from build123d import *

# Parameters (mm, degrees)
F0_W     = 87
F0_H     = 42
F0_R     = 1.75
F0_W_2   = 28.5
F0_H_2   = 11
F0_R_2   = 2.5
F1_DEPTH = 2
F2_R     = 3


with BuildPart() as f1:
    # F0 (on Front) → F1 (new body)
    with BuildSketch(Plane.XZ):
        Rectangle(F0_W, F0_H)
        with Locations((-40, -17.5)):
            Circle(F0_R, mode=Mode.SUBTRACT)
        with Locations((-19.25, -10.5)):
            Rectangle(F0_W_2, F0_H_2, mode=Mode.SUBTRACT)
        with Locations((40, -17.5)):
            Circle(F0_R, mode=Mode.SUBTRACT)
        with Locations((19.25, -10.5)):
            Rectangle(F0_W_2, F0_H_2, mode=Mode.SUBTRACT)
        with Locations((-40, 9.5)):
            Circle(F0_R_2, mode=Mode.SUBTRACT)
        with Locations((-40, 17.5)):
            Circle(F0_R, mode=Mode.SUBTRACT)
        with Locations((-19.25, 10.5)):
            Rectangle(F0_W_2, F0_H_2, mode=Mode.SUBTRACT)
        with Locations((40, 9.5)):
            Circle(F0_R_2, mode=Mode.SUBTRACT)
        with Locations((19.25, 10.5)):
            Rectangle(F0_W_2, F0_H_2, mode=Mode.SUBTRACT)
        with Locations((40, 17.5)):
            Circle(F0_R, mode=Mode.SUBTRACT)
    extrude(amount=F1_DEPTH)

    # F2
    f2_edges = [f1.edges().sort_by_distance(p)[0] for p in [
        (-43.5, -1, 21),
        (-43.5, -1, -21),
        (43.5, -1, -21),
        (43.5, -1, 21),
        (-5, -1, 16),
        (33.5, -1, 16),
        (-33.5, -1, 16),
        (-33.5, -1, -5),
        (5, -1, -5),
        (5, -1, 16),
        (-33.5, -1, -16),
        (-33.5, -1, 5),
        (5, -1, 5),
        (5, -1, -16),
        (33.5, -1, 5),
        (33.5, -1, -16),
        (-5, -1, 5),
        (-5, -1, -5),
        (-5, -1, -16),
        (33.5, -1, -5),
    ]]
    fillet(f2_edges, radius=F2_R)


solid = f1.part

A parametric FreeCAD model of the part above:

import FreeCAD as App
import Part
import Sketcher

V = App.Vector


def edges_at(feature, points):
    """Names of the edges that pass closest to the given points."""
    edges = feature.Shape.Edges
    near = lambda p: min(range(len(edges)), key=lambda i: edges[i].distToShape(Part.Vertex(*p))[0])
    return sorted({f"Edge{near(p) + 1}" for p in points})


def add_polygon(sketch, points):
    """Adds a closed chain of lines whose ends are joined by coincident constraints."""
    first, n = sketch.GeometryCount, len(points)
    for a, b in zip(points, points[1:] + points[:1]):
        sketch.addGeometry(Part.LineSegment(App.Vector(*a, 0), App.Vector(*b, 0)), False)
    for i in range(n):
        sketch.addConstraint(Sketcher.Constraint("Coincident", first + i, 2, first + (i + 1) % n, 1))

doc = App.newDocument("Part")
body = doc.addObject("PartDesign::Body", "Body")

sketch1 = body.newObject("Sketcher::SketchObject", "Sketch")
sketch1.AttachmentSupport = (doc.getObject("XZ_Plane"), [""])
sketch1.MapMode = "FlatFace"
add_polygon(sketch1, [(-43.5, 21), (-43.5, -21), (43.5, -21), (43.5, 21)])
sketch1.addGeometry(Part.Circle(V(-40, -17.5, 0), V(0, 0, 1), 1.75), False)
add_polygon(sketch1, [(-5, -16), (-33.5, -16), (-33.5, -5), (-5, -5)])
add_polygon(sketch1, [(33.5, -16), (5, -16), (5, -5), (33.5, -5)])
sketch1.addGeometry(Part.Circle(V(40, -17.5, 0), V(0, 0, 1), 1.75), False)
sketch1.addGeometry(Part.Circle(V(-40, 9.5, 0), V(0, 0, 1), 2.5), False)
sketch1.addGeometry(Part.Circle(V(-40, 17.5, 0), V(0, 0, 1), 1.75), False)
add_polygon(sketch1, [(-5, 5), (-33.5, 5), (-33.5, 16), (-5, 16)])
sketch1.addGeometry(Part.Circle(V(40, 9.5, 0), V(0, 0, 1), 2.5), False)
add_polygon(sketch1, [(33.5, 5), (5, 5), (5, 16), (33.5, 16)])
sketch1.addGeometry(Part.Circle(V(40, 17.5, 0), V(0, 0, 1), 1.75), False)
sketch1.addConstraint([
    Sketcher.Constraint("Vertical", 0),
    Sketcher.Constraint("Horizontal", 1),
    Sketcher.Constraint("Vertical", 2),
    Sketcher.Constraint("Horizontal", 3),
    Sketcher.Constraint("Horizontal", 5),
    Sketcher.Constraint("Vertical", 6),
    Sketcher.Constraint("Horizontal", 7),
    Sketcher.Constraint("Vertical", 8),
    Sketcher.Constraint("Horizontal", 9),
    Sketcher.Constraint("Vertical", 10),
    Sketcher.Constraint("Horizontal", 11),
    Sketcher.Constraint("Vertical", 12),
    Sketcher.Constraint("Horizontal", 16),
    Sketcher.Constraint("Vertical", 17),
    Sketcher.Constraint("Horizontal", 18),
    Sketcher.Constraint("Vertical", 19),
    Sketcher.Constraint("Horizontal", 21),
    Sketcher.Constraint("Vertical", 22),
    Sketcher.Constraint("Horizontal", 23),
    Sketcher.Constraint("Vertical", 24),
    Sketcher.Constraint("Equal", 4, 13),
    Sketcher.Constraint("Equal", 13, 15),
    Sketcher.Constraint("Equal", 14, 20),
    Sketcher.Constraint("Equal", 15, 25),
    Sketcher.Constraint("Symmetric", 13, 3, 15, 3, -1, 1),
    Sketcher.Constraint("Symmetric", 4, 3, 25, 3, -1, 1),
    Sketcher.Constraint("Symmetric", 0, 2, 2, 2, -1, 1),
    Sketcher.Constraint("Symmetric", 11, 2, 16, 2, -1, 1),
    Sketcher.Constraint("Symmetric", 9, 2, 18, 2, -1, 1),
    Sketcher.Constraint("Symmetric", 7, 2, 21, 2, -1, 1),
    Sketcher.Constraint("Symmetric", 5, 2, 23, 2, -1, 1),
    Sketcher.Constraint("Symmetric", 4, 3, 13, 3, -2),
    Sketcher.Constraint("Symmetric", 14, 3, 20, 3, -2),
    Sketcher.Constraint("Symmetric", 8, 2, 9, 2, -2),
    Sketcher.Constraint("Symmetric", 6, 2, 11, 2, -2),
    Sketcher.Constraint("Vertical", 4, 3, 14, 3),
    Sketcher.Constraint("Diameter", 14, 5.0),
    Sketcher.Constraint("Diameter", 4, 3.5),
    Sketcher.Constraint("DistanceX", 1, 1, 1, 2, 87.0),
    Sketcher.Constraint("DistanceY", 0, 2, 0, 1, 42.0),
    Sketcher.Constraint("DistanceY", 6, 1, 6, 2, 11.0),
    Sketcher.Constraint("DistanceX", 5, 2, 5, 1, 28.5),
    Sketcher.Constraint("DistanceX", 4, 3, -1, 1, 40.0),
    Sketcher.Constraint("DistanceY", 5, 2, -1, 1, 16.0),
    Sketcher.Constraint("DistanceX", 7, 2, -1, 1, 5.0),
    Sketcher.Constraint("DistanceY", 4, 3, 14, 3, 27.0),
    Sketcher.Constraint("DistanceY", 14, 3, 15, 3, 8.0),
])
pad1 = body.newObject("PartDesign::Pad", "Pad")
pad1.Profile = sketch1
pad1.Length = 2
doc.recompute()

fillet = body.newObject("PartDesign::Fillet", "Fillet")
fillet.Base = (pad1, edges_at(pad1, [
    (-43.5, -1, 21),
    (-43.5, -1, -21),
    (43.5, -1, -21),
    (43.5, -1, 21),
    (-5, -1, 16),
    (33.5, -1, 16),
    (-33.5, -1, 16),
    (-33.5, -1, -5),
    (5, -1, -5),
    (5, -1, 16),
    (-33.5, -1, -16),
    (-33.5, -1, 5),
    (5, -1, 5),
    (5, -1, -16),
    (33.5, -1, 5),
    (33.5, -1, -16),
    (-5, -1, 5),
    (-5, -1, -5),
    (-5, -1, -16),
    (33.5, -1, -5),
]))
fillet.Radius = 3

doc.recompute()
